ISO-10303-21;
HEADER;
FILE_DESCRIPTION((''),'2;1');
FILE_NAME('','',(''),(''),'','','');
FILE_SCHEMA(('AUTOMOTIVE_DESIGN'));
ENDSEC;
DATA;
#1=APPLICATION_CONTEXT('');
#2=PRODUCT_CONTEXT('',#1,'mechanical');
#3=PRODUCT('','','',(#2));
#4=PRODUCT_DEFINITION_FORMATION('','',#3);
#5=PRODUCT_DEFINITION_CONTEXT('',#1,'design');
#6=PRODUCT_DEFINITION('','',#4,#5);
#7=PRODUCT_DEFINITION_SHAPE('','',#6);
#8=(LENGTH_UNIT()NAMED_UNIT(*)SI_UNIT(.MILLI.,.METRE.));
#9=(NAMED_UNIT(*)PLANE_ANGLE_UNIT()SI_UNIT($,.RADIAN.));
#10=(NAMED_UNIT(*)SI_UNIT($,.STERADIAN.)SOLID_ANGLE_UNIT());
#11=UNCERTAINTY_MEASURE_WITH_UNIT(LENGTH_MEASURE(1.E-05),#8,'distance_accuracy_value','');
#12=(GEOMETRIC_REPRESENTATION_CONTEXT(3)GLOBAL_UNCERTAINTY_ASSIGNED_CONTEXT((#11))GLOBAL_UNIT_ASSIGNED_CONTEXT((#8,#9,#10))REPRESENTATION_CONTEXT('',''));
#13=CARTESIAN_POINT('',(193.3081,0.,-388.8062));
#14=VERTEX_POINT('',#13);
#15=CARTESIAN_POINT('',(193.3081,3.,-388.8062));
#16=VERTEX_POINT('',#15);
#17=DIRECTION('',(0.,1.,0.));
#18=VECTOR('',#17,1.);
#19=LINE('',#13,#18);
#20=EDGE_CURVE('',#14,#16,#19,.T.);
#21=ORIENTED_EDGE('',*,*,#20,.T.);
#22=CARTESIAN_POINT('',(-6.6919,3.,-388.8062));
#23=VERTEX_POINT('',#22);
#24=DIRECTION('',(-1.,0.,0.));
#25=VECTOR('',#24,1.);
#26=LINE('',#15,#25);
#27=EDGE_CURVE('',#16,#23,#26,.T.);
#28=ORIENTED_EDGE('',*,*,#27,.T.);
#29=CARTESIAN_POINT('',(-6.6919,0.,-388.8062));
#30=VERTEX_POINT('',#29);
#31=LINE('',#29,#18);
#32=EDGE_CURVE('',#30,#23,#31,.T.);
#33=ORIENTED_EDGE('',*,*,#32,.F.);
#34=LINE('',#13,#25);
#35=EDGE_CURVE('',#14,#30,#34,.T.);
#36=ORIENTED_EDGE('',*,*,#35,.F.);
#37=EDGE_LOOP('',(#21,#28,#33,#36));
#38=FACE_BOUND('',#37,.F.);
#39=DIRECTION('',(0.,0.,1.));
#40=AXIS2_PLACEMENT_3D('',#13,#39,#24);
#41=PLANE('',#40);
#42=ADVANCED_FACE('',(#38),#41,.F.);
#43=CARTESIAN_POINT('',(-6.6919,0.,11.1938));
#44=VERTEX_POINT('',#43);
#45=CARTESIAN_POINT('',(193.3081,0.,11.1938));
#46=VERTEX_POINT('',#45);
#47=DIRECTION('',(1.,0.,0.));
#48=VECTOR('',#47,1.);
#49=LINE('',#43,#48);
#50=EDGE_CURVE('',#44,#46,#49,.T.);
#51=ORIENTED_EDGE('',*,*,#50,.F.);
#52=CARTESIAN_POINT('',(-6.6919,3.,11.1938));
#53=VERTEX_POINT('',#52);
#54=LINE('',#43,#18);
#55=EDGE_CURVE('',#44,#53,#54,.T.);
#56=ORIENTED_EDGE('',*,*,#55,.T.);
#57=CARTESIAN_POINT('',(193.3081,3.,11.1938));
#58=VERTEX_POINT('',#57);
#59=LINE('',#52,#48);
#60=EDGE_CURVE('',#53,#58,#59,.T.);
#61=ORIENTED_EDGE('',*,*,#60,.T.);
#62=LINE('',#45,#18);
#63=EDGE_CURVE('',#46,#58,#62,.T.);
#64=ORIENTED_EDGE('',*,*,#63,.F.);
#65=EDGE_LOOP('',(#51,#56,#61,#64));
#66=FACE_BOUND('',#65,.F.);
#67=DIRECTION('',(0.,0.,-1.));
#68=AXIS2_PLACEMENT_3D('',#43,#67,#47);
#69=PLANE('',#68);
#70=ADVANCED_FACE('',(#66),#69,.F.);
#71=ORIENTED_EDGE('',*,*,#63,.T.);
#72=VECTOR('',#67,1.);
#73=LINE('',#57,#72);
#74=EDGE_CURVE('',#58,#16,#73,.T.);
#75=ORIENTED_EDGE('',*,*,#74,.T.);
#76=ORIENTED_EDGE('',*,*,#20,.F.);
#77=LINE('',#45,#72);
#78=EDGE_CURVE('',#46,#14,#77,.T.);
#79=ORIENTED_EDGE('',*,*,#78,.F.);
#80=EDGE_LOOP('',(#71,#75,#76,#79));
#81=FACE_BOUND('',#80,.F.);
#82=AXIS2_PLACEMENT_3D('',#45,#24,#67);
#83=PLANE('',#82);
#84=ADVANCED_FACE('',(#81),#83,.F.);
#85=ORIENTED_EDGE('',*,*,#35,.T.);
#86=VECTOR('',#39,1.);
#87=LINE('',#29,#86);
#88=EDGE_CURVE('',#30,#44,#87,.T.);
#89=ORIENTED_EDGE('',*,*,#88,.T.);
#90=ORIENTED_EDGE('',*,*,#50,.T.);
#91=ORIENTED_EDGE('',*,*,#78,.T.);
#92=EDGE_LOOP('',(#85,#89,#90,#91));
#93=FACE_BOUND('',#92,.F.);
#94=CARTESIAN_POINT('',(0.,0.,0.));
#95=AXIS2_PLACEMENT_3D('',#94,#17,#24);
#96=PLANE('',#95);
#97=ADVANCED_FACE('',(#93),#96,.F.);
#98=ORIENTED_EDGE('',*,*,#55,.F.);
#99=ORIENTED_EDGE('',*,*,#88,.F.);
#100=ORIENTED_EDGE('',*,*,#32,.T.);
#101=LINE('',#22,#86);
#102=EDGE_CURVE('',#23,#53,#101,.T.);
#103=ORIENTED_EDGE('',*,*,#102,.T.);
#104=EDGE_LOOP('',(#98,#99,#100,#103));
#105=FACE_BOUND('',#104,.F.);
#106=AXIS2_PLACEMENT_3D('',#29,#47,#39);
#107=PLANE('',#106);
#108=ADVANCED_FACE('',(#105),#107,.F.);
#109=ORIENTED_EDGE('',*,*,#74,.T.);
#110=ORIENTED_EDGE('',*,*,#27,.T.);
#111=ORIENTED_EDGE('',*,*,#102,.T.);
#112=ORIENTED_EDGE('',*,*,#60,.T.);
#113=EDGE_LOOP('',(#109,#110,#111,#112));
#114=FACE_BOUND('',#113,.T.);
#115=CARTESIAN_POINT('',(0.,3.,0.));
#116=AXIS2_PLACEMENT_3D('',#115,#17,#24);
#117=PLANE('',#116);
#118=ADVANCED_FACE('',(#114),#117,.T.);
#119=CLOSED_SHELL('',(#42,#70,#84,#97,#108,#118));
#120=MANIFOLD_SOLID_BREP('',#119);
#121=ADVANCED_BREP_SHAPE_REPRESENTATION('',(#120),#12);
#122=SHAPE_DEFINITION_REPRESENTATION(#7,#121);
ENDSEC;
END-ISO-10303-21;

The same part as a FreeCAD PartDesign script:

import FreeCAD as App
import Part
import Sketcher

V = App.Vector


def add_polygon(sketch, points):
    """Adds a closed chain of lines whose ends are joined by coincident constraints."""
    first, n = sketch.GeometryCount, len(points)
    for a, b in zip(points, points[1:] + points[:1]):
        sketch.addGeometry(Part.LineSegment(App.Vector(*a, 0), App.Vector(*b, 0)), False)
    for i in range(n):
        sketch.addConstraint(Sketcher.Constraint("Coincident", first + i, 2, first + (i + 1) % n, 1))

doc = App.newDocument("Part")
body = doc.addObject("PartDesign::Body", "Body")

# Sketch on XZ plane
sketch1 = body.newObject("Sketcher::SketchObject", "Sketch")
sketch1.AttachmentSupport = (doc.getObject("XZ_Plane"), [""])
sketch1.MapMode = "FlatFace"
add_polygon(sketch1, [(-7, -389), (-7, 11), (193, 11), (193, -389)])  # lines 0-3
sketch1.addConstraint([
    Sketcher.Constraint("Vertical", 0),
    Sketcher.Constraint("Horizontal", 1),
    Sketcher.Constraint("Vertical", 2),
    Sketcher.Constraint("Horizontal", 3),
    Sketcher.Constraint("DistanceX", 1, 1, 1, 2, 200.0),
    Sketcher.Constraint("DistanceY", 0, 1, 0, 2, 400.0),
    Sketcher.Constraint("DistanceX", 0, 2, -1, 1, 6.692),
    Sketcher.Constraint("DistanceY", -1, 1, 0, 2, 11.1938),
])
pad1 = body.newObject("PartDesign::Pad", "Pad")
pad1.Profile = sketch1
pad1.Length = 3
pad1.Reversed = True

doc.recompute()
